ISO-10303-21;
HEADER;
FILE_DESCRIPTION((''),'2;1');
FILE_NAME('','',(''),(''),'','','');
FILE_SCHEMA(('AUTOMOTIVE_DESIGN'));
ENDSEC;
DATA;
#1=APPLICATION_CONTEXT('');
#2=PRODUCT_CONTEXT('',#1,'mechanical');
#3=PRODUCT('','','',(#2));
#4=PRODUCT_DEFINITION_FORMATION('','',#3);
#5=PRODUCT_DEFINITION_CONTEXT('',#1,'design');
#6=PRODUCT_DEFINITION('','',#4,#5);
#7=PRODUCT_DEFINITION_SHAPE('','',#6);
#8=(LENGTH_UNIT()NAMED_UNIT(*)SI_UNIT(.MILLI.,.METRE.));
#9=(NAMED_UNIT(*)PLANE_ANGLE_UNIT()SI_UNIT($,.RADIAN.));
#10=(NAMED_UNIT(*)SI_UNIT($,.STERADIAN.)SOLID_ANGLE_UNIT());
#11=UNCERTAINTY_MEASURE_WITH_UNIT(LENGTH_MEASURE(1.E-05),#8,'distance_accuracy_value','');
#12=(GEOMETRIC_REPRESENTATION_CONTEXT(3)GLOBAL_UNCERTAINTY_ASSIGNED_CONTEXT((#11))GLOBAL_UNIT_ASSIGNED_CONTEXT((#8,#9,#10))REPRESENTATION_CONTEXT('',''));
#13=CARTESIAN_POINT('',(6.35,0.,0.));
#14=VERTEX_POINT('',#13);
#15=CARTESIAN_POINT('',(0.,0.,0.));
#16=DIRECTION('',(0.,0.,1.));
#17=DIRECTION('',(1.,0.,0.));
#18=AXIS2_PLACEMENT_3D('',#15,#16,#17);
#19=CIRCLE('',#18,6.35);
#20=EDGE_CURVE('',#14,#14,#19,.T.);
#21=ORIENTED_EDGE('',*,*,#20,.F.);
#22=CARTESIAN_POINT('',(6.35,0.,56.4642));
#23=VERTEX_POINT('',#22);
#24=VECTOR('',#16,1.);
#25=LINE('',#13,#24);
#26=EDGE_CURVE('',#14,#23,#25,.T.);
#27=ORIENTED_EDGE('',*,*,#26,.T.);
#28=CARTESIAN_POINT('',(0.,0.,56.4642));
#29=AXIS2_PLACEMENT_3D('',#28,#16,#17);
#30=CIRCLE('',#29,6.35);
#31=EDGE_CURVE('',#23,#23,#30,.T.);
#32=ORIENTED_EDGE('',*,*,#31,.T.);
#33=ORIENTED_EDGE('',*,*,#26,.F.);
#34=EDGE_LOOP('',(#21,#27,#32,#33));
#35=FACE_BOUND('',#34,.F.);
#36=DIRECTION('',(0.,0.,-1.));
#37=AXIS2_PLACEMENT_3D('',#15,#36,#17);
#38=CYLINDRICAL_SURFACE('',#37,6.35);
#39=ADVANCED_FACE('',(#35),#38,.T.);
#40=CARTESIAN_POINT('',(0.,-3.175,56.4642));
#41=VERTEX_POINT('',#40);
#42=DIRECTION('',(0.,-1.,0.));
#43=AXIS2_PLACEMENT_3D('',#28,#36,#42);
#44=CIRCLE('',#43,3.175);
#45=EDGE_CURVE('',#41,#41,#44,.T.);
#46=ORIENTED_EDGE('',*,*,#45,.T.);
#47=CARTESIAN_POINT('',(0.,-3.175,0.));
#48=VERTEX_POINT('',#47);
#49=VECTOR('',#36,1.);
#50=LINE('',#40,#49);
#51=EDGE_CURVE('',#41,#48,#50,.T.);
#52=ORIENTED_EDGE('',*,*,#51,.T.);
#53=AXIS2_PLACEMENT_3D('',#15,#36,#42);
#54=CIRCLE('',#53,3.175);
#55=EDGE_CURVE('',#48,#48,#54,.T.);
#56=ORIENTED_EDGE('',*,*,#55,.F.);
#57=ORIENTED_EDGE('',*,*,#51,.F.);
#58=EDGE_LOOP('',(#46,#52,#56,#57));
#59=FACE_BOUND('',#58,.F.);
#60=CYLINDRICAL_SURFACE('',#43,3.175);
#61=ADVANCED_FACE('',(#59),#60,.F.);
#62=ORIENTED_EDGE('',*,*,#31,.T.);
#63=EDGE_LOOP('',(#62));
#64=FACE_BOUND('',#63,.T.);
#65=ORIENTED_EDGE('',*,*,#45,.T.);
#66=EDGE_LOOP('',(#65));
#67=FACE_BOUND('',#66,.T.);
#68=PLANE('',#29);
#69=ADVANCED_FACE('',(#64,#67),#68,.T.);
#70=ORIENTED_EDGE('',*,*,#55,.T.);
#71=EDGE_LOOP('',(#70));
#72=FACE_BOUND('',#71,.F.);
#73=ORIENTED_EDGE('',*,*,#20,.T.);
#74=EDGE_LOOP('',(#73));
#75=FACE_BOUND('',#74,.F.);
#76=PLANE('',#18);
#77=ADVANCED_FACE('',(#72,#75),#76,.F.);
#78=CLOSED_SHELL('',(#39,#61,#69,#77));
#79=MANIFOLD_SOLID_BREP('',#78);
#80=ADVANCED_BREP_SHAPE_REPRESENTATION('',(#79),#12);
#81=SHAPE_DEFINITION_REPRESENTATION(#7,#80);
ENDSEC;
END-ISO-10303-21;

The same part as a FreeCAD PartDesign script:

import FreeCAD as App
import Part
import Sketcher

V = App.Vector
Q = App.Units.Quantity

doc = App.newDocument("Part")
params = doc.addObject("Spreadsheet::Sheet", "Params")
for row, (alias, value) in enumerate([
    ("sketch1_diameter", "0.5 in"),
    ("pad1_length", "2.223 in"),
    ("sketch2_diameter", "0.25 in"),
    ("hole_diameter", "0.25 in"),
], start=1):
    params.set(f"A{row}", alias)
    params.set(f"B{row}", "=" + value)
    params.setAlias(f"B{row}", alias)

body = doc.addObject("PartDesign::Body", "Body")

# Sketch on XY plane
sketch1 = body.newObject("Sketcher::SketchObject", "Sketch")
sketch1.AttachmentSupport = (doc.getObject("XY_Plane"), [""])
sketch1.MapMode = "FlatFace"
sketch1.addGeometry(Part.Circle(V(0, 0, 0), V(0, 0, 1), 6), False)
sketch1.addConstraint([
    Sketcher.Constraint("Coincident", 0, 3, -1, 1),
    Sketcher.Constraint("Diameter", 0, Q("0.5 in")),
])
sketch1.setExpression("Constraints[1]", "Params.sketch1_diameter")
pad1 = body.newObject("PartDesign::Pad", "Pad")
pad1.Profile = sketch1
pad1.setExpression("Length", "Params.pad1_length")

# Sketch on XY plane
sketch2 = body.newObject("Sketcher::SketchObject", "Sketch001")
sketch2.AttachmentSupport = (doc.getObject("XY_Plane"), [""])
sketch2.MapMode = "FlatFace"
sketch2.AttachmentOffset = App.Placement(V(0, 0, 2.223 * 25.4), App.Rotation())
sketch2.addGeometry(Part.Circle(V(0, 0, 0), V(0, 0, 1), 3.2), False)
sketch2.addConstraint([
    Sketcher.Constraint("Coincident", 0, 3, -1, 1),
    Sketcher.Constraint("Diameter", 0, Q("0.25 in")),
])
sketch2.setExpression("Constraints[1]", "Params.sketch2_diameter")
doc.recompute()
hole = body.newObject("PartDesign::Hole", "Hole")
hole.Profile = sketch2
hole.ThreadType = "None"
hole.setExpression("Diameter", "Params.hole_diameter")
hole.DepthType = "ThroughAll"

doc.recompute()
